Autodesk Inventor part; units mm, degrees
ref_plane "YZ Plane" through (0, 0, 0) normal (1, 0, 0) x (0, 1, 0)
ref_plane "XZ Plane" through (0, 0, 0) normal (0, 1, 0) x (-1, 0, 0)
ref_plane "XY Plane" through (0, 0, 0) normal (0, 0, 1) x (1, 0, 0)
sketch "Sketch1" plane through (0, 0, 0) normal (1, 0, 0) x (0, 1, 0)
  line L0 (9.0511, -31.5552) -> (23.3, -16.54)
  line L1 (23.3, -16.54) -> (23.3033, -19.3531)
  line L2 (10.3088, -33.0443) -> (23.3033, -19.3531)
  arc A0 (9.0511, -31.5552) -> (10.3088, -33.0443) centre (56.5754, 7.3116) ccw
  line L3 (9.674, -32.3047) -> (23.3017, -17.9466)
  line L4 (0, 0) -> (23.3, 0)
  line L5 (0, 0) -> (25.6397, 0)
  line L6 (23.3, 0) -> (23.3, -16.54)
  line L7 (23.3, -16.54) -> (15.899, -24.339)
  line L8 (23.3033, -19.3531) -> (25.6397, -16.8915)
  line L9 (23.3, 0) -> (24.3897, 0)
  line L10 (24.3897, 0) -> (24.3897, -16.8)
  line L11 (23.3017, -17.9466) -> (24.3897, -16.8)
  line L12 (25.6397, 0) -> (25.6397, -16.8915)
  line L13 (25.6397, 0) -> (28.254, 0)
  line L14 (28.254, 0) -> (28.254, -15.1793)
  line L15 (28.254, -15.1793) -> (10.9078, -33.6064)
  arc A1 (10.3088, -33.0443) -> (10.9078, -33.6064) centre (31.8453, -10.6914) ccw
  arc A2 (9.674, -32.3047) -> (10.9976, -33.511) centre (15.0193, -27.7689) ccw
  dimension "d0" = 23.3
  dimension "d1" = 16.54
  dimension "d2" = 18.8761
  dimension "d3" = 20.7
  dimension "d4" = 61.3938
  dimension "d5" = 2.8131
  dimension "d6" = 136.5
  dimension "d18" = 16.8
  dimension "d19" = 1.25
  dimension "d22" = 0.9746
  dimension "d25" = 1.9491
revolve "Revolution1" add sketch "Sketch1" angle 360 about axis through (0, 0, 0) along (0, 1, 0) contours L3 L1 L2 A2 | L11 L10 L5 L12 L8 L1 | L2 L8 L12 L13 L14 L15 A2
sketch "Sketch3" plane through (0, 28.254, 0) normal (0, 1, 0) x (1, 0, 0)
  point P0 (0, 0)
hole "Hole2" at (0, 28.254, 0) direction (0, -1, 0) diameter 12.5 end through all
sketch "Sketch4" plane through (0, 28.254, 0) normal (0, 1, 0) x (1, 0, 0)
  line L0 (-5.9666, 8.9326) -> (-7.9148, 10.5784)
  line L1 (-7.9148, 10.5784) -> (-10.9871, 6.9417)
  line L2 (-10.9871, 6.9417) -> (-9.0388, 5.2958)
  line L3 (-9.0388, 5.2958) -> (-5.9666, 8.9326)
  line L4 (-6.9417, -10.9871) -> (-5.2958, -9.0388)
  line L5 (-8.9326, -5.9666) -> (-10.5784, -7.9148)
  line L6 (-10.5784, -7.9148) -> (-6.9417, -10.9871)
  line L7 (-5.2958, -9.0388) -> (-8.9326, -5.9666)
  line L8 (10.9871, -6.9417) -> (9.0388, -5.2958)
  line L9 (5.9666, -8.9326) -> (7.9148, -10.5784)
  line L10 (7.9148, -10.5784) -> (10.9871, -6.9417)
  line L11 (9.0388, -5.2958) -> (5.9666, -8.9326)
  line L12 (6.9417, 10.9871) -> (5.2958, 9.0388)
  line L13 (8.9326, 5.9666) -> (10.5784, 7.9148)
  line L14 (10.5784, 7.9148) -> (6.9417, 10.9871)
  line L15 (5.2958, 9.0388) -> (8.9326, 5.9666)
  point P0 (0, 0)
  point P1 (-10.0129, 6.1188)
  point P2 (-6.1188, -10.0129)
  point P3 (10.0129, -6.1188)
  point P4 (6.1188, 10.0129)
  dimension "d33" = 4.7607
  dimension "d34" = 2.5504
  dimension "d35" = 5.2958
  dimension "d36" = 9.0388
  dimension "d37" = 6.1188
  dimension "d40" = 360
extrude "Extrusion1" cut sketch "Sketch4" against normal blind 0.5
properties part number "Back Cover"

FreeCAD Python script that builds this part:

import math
import FreeCAD as App
import Part
import Sketcher

V = App.Vector
Q = App.Units.Quantity

doc = App.newDocument("Part")
body = doc.addObject("PartDesign::Body", "Body")

# Sketch on YZ plane
sketch1 = body.newObject("Sketcher::SketchObject", "Sketch")
sketch1.AttachmentSupport = (doc.getObject("YZ_Plane"), [""])
sketch1.MapMode = "FlatFace"
sketch1.addGeometry(Part.LineSegment(V(23.3, -17.9, 0), V(9.7, -32.3, 0)), False)
sketch1.addGeometry(Part.ArcOfCircle(Part.Circle(V(15, -27.8, 0), V(0, 0, 1), 7), math.radians(-139.68), math.radians(-125.01)), False)
sketch1.addGeometry(Part.LineSegment(V(11, -33.5, 0), V(28.3, -15.2, 0)), False)
sketch1.addGeometry(Part.LineSegment(V(28.3, -15.2, 0), V(28.3, 0, 0)), False)
sketch1.addGeometry(Part.LineSegment(V(28.3, 0, 0), V(24.4, 0, 0)), False)
sketch1.addGeometry(Part.LineSegment(V(24.4, 0, 0), V(24.4, -16.8, 0)), False)
sketch1.addGeometry(Part.LineSegment(V(24.4, -16.8, 0), V(23.3, -17.9, 0)), False)
sketch1.addConstraint(Sketcher.Constraint("Coincident", 0, 2, 1, 1))
sketch1.addConstraint(Sketcher.Constraint("Coincident", 1, 2, 2, 1))
sketch1.addConstraint(Sketcher.Constraint("Coincident", 2, 2, 3, 1))
sketch1.addConstraint(Sketcher.Constraint("Coincident", 3, 2, 4, 1))
sketch1.addConstraint(Sketcher.Constraint("Coincident", 4, 2, 5, 1))
sketch1.addConstraint(Sketcher.Constraint("Coincident", 5, 2, 6, 1))
sketch1.addConstraint(Sketcher.Constraint("Coincident", 6, 2, 0, 1))
sketch1.addConstraint(Sketcher.Constraint("Vertical", 3))
sketch1.addConstraint(Sketcher.Constraint("Horizontal", 4))
sketch1.addConstraint(Sketcher.Constraint("Vertical", 5))
sketch1.addConstraint(Sketcher.Constraint("PointOnObject", 3, 2, -1))
sketch1.addConstraint(Sketcher.Constraint("Parallel", 0, 6))
sketch1.addConstraint(Sketcher.Constraint("DistanceY", 5, 2, 5, 1, Q("16.8 mm")))
sketch1.addConstraint(Sketcher.Constraint("Angle", 2, Q("46.7307 deg")))
sketch1.addConstraint(Sketcher.Constraint("Radius", 1, Q("7.0104 mm")))
sketch1.addConstraint(Sketcher.Constraint("DistanceX", 0, 2, 2, 2, Q("18.58 mm")))
sketch1.addConstraint(Sketcher.Constraint("Distance", 2, Q("25.176 mm")))
sketch1.addConstraint(Sketcher.Constraint("DistanceX", 4, 2, 4, 1, Q("3.8643 mm")))
sketch1.addConstraint(Sketcher.Constraint("DistanceY", 3, 1, 3, 2, Q("15.1793 mm")))
sketch1.addConstraint(Sketcher.Constraint("DistanceY", 1, 3, -1, 1, Q("27.769 mm")))
sketch1.addConstraint(Sketcher.Constraint("DistanceX", -1, 1, 0, 2, Q("9.674 mm")))
sketch1.addConstraint(Sketcher.Constraint("DistanceX", 6, 2, 5, 2, Q("1.088 mm")))
revolution = body.newObject("PartDesign::Revolution", "Revolution")
revolution.Profile = sketch1
revolution.ReferenceAxis = (sketch1, ["H_Axis"])
revolution.Angle = 360

# Sketch on XZ plane
sketch2 = body.newObject("Sketcher::SketchObject", "Sketch001")
sketch2.AttachmentSupport = (doc.getObject("XZ_Plane"), [""])
sketch2.MapMode = "FlatFace"
sketch2.AttachmentOffset = App.Placement(V(0, 0, -28.254), App.Rotation())
sketch2.addGeometry(Part.Circle(V(0, 0, 0), V(0, 0, 1), 6), False)
sketch2.addConstraint(Sketcher.Constraint("Coincident", 0, 3, -1, 1))
sketch2.addConstraint(Sketcher.Constraint("Diameter", 0, Q("12.5 mm")))
doc.recompute()
hole = body.newObject("PartDesign::Hole", "Hole")
hole.Profile = sketch2
hole.ThreadType = "None"
hole.Diameter = 12.5
hole.DepthType = "ThroughAll"
hole.Reversed = True

# Sketch on XZ plane
sketch3 = body.newObject("Sketcher::SketchObject", "Sketch002")
sketch3.AttachmentSupport = (doc.getObject("XZ_Plane"), [""])
sketch3.MapMode = "FlatFace"
sketch3.AttachmentOffset = App.Placement(V(0, 0, -28.254), App.Rotation())
sketch3.addGeometry(Part.LineSegment(V(-9, -5.3, 0), V(-6, -8.9, 0)), False)
sketch3.addGeometry(Part.LineSegment(V(-6, -8.9, 0), V(-7.9, -10.6, 0)), False)
sketch3.addGeometry(Part.LineSegment(V(-7.9, -10.6, 0), V(-11, -6.9, 0)), False)
sketch3.addGeometry(Part.LineSegment(V(-11, -6.9, 0), V(-9, -5.3, 0)), False)
sketch3.addGeometry(Part.LineSegment(V(-10.6, 7.9, 0), V(-6.9, 11, 0)), False)
sketch3.addGeometry(Part.LineSegment(V(-6.9, 11, 0), V(-5.3, 9, 0)), False)
sketch3.addGeometry(Part.LineSegment(V(-5.3, 9, 0), V(-8.9, 6, 0)), False)
sketch3.addGeometry(Part.LineSegment(V(-8.9, 6, 0), V(-10.6, 7.9, 0)), False)
sketch3.addGeometry(Part.LineSegment(V(7.9, 10.6, 0), V(11, 6.9, 0)), False)
sketch3.addGeometry(Part.LineSegment(V(11, 6.9, 0), V(9, 5.3, 0)), False)
sketch3.addGeometry(Part.LineSegment(V(9, 5.3, 0), V(6, 8.9, 0)), False)
sketch3.addGeometry(Part.LineSegment(V(6, 8.9, 0), V(7.9, 10.6, 0)), False)
sketch3.addGeometry(Part.LineSegment(V(10.6, -7.9, 0), V(6.9, -11, 0)), False)
sketch3.addGeometry(Part.LineSegment(V(6.9, -11, 0), V(5.3, -9, 0)), False)
sketch3.addGeometry(Part.LineSegment(V(5.3, -9, 0), V(8.9, -6, 0)), False)
sketch3.addGeometry(Part.LineSegment(V(8.9, -6, 0), V(10.6, -7.9, 0)), False)
sketch3.addConstraint(Sketcher.Constraint("Coincident", 0, 2, 1, 1))
sketch3.addConstraint(Sketcher.Constraint("Coincident", 1, 2, 2, 1))
sketch3.addConstraint(Sketcher.Constraint("Coincident", 2, 2, 3, 1))
sketch3.addConstraint(Sketcher.Constraint("Coincident", 3, 2, 0, 1))
sketch3.addConstraint(Sketcher.Constraint("Coincident", 4, 2, 5, 1))
sketch3.addConstraint(Sketcher.Constraint("Coincident", 5, 2, 6, 1))
sketch3.addConstraint(Sketcher.Constraint("Coincident", 6, 2, 7, 1))
sketch3.addConstraint(Sketcher.Constraint("Coincident", 7, 2, 4, 1))
sketch3.addConstraint(Sketcher.Constraint("Coincident", 8, 2, 9, 1))
sketch3.addConstraint(Sketcher.Constraint("Coincident", 9, 2, 10, 1))
sketch3.addConstraint(Sketcher.Constraint("Coincident", 10, 2, 11, 1))
sketch3.addConstraint(Sketcher.Constraint("Coincident", 11, 2, 8, 1))
sketch3.addConstraint(Sketcher.Constraint("Coincident", 12, 2, 13, 1))
sketch3.addConstraint(Sketcher.Constraint("Coincident", 13, 2, 14, 1))
sketch3.addConstraint(Sketcher.Constraint("Coincident", 14, 2, 15, 1))
sketch3.addConstraint(Sketcher.Constraint("Coincident", 15, 2, 12, 1))
sketch3.addConstraint(Sketcher.Constraint("Symmetric", 2, 2, 8, 2, -1, 1))
sketch3.addConstraint(Sketcher.Constraint("Symmetric", 3, 2, 9, 2, -1, 1))
sketch3.addConstraint(Sketcher.Constraint("Symmetric", 0, 2, 10, 2, -1, 1))
sketch3.addConstraint(Sketcher.Constraint("Symmetric", 1, 2, 11, 2, -1, 1))
sketch3.addConstraint(Sketcher.Constraint("Symmetric", 4, 2, 12, 2, -1, 1))
sketch3.addConstraint(Sketcher.Constraint("Symmetric", 5, 2, 13, 2, -1, 1))
sketch3.addConstraint(Sketcher.Constraint("Symmetric", 6, 2, 14, 2, -1, 1))
sketch3.addConstraint(Sketcher.Constraint("Symmetric", 7, 2, 15, 2, -1, 1))
sketch3.addConstraint(Sketcher.Constraint("Perpendicular", 0, 1))
sketch3.addConstraint(Sketcher.Constraint("Perpendicular", 1, 2))
sketch3.addConstraint(Sketcher.Constraint("Perpendicular", 2, 3))
sketch3.addConstraint(Sketcher.Constraint("Parallel", 3, 4))
sketch3.addConstraint(Sketcher.Constraint("Perpendicular", 4, 5))
sketch3.addConstraint(Sketcher.Constraint("Perpendicular", 5, 6))
sketch3.addConstraint(Sketcher.Constraint("Perpendicular", 6, 7))
sketch3.addConstraint(Sketcher.Constraint("Equal", 2, 4))
sketch3.addConstraint(Sketcher.Constraint("Equal", 3, 5))
sketch3.addConstraint(Sketcher.Constraint("Distance", 0, Q("4.7607 mm")))
sketch3.addConstraint(Sketcher.Constraint("Distance", 1, Q("2.5503 mm")))
sketch3.addConstraint(Sketcher.Constraint("DistanceX", 3, 2, -1, 1, Q("9.0388 mm")))
sketch3.addConstraint(Sketcher.Constraint("DistanceY", 3, 2, -1, 1, Q("5.2958 mm")))
sketch3.addConstraint(Sketcher.Constraint("DistanceX", 5, 2, -1, 1, Q("5.2958 mm")))
sketch3.addConstraint(Sketcher.Constraint("DistanceY", -1, 1, 5, 2, Q("9.0388 mm")))
sketch3.addConstraint(Sketcher.Constraint("Angle", 0, Q("-49.8104 deg")))
pocket1 = body.newObject("PartDesign::Pocket", "Pocket")
pocket1.Profile = sketch3
pocket1.Length = 0.5
pocket1.Reversed = True

doc.recompute()
